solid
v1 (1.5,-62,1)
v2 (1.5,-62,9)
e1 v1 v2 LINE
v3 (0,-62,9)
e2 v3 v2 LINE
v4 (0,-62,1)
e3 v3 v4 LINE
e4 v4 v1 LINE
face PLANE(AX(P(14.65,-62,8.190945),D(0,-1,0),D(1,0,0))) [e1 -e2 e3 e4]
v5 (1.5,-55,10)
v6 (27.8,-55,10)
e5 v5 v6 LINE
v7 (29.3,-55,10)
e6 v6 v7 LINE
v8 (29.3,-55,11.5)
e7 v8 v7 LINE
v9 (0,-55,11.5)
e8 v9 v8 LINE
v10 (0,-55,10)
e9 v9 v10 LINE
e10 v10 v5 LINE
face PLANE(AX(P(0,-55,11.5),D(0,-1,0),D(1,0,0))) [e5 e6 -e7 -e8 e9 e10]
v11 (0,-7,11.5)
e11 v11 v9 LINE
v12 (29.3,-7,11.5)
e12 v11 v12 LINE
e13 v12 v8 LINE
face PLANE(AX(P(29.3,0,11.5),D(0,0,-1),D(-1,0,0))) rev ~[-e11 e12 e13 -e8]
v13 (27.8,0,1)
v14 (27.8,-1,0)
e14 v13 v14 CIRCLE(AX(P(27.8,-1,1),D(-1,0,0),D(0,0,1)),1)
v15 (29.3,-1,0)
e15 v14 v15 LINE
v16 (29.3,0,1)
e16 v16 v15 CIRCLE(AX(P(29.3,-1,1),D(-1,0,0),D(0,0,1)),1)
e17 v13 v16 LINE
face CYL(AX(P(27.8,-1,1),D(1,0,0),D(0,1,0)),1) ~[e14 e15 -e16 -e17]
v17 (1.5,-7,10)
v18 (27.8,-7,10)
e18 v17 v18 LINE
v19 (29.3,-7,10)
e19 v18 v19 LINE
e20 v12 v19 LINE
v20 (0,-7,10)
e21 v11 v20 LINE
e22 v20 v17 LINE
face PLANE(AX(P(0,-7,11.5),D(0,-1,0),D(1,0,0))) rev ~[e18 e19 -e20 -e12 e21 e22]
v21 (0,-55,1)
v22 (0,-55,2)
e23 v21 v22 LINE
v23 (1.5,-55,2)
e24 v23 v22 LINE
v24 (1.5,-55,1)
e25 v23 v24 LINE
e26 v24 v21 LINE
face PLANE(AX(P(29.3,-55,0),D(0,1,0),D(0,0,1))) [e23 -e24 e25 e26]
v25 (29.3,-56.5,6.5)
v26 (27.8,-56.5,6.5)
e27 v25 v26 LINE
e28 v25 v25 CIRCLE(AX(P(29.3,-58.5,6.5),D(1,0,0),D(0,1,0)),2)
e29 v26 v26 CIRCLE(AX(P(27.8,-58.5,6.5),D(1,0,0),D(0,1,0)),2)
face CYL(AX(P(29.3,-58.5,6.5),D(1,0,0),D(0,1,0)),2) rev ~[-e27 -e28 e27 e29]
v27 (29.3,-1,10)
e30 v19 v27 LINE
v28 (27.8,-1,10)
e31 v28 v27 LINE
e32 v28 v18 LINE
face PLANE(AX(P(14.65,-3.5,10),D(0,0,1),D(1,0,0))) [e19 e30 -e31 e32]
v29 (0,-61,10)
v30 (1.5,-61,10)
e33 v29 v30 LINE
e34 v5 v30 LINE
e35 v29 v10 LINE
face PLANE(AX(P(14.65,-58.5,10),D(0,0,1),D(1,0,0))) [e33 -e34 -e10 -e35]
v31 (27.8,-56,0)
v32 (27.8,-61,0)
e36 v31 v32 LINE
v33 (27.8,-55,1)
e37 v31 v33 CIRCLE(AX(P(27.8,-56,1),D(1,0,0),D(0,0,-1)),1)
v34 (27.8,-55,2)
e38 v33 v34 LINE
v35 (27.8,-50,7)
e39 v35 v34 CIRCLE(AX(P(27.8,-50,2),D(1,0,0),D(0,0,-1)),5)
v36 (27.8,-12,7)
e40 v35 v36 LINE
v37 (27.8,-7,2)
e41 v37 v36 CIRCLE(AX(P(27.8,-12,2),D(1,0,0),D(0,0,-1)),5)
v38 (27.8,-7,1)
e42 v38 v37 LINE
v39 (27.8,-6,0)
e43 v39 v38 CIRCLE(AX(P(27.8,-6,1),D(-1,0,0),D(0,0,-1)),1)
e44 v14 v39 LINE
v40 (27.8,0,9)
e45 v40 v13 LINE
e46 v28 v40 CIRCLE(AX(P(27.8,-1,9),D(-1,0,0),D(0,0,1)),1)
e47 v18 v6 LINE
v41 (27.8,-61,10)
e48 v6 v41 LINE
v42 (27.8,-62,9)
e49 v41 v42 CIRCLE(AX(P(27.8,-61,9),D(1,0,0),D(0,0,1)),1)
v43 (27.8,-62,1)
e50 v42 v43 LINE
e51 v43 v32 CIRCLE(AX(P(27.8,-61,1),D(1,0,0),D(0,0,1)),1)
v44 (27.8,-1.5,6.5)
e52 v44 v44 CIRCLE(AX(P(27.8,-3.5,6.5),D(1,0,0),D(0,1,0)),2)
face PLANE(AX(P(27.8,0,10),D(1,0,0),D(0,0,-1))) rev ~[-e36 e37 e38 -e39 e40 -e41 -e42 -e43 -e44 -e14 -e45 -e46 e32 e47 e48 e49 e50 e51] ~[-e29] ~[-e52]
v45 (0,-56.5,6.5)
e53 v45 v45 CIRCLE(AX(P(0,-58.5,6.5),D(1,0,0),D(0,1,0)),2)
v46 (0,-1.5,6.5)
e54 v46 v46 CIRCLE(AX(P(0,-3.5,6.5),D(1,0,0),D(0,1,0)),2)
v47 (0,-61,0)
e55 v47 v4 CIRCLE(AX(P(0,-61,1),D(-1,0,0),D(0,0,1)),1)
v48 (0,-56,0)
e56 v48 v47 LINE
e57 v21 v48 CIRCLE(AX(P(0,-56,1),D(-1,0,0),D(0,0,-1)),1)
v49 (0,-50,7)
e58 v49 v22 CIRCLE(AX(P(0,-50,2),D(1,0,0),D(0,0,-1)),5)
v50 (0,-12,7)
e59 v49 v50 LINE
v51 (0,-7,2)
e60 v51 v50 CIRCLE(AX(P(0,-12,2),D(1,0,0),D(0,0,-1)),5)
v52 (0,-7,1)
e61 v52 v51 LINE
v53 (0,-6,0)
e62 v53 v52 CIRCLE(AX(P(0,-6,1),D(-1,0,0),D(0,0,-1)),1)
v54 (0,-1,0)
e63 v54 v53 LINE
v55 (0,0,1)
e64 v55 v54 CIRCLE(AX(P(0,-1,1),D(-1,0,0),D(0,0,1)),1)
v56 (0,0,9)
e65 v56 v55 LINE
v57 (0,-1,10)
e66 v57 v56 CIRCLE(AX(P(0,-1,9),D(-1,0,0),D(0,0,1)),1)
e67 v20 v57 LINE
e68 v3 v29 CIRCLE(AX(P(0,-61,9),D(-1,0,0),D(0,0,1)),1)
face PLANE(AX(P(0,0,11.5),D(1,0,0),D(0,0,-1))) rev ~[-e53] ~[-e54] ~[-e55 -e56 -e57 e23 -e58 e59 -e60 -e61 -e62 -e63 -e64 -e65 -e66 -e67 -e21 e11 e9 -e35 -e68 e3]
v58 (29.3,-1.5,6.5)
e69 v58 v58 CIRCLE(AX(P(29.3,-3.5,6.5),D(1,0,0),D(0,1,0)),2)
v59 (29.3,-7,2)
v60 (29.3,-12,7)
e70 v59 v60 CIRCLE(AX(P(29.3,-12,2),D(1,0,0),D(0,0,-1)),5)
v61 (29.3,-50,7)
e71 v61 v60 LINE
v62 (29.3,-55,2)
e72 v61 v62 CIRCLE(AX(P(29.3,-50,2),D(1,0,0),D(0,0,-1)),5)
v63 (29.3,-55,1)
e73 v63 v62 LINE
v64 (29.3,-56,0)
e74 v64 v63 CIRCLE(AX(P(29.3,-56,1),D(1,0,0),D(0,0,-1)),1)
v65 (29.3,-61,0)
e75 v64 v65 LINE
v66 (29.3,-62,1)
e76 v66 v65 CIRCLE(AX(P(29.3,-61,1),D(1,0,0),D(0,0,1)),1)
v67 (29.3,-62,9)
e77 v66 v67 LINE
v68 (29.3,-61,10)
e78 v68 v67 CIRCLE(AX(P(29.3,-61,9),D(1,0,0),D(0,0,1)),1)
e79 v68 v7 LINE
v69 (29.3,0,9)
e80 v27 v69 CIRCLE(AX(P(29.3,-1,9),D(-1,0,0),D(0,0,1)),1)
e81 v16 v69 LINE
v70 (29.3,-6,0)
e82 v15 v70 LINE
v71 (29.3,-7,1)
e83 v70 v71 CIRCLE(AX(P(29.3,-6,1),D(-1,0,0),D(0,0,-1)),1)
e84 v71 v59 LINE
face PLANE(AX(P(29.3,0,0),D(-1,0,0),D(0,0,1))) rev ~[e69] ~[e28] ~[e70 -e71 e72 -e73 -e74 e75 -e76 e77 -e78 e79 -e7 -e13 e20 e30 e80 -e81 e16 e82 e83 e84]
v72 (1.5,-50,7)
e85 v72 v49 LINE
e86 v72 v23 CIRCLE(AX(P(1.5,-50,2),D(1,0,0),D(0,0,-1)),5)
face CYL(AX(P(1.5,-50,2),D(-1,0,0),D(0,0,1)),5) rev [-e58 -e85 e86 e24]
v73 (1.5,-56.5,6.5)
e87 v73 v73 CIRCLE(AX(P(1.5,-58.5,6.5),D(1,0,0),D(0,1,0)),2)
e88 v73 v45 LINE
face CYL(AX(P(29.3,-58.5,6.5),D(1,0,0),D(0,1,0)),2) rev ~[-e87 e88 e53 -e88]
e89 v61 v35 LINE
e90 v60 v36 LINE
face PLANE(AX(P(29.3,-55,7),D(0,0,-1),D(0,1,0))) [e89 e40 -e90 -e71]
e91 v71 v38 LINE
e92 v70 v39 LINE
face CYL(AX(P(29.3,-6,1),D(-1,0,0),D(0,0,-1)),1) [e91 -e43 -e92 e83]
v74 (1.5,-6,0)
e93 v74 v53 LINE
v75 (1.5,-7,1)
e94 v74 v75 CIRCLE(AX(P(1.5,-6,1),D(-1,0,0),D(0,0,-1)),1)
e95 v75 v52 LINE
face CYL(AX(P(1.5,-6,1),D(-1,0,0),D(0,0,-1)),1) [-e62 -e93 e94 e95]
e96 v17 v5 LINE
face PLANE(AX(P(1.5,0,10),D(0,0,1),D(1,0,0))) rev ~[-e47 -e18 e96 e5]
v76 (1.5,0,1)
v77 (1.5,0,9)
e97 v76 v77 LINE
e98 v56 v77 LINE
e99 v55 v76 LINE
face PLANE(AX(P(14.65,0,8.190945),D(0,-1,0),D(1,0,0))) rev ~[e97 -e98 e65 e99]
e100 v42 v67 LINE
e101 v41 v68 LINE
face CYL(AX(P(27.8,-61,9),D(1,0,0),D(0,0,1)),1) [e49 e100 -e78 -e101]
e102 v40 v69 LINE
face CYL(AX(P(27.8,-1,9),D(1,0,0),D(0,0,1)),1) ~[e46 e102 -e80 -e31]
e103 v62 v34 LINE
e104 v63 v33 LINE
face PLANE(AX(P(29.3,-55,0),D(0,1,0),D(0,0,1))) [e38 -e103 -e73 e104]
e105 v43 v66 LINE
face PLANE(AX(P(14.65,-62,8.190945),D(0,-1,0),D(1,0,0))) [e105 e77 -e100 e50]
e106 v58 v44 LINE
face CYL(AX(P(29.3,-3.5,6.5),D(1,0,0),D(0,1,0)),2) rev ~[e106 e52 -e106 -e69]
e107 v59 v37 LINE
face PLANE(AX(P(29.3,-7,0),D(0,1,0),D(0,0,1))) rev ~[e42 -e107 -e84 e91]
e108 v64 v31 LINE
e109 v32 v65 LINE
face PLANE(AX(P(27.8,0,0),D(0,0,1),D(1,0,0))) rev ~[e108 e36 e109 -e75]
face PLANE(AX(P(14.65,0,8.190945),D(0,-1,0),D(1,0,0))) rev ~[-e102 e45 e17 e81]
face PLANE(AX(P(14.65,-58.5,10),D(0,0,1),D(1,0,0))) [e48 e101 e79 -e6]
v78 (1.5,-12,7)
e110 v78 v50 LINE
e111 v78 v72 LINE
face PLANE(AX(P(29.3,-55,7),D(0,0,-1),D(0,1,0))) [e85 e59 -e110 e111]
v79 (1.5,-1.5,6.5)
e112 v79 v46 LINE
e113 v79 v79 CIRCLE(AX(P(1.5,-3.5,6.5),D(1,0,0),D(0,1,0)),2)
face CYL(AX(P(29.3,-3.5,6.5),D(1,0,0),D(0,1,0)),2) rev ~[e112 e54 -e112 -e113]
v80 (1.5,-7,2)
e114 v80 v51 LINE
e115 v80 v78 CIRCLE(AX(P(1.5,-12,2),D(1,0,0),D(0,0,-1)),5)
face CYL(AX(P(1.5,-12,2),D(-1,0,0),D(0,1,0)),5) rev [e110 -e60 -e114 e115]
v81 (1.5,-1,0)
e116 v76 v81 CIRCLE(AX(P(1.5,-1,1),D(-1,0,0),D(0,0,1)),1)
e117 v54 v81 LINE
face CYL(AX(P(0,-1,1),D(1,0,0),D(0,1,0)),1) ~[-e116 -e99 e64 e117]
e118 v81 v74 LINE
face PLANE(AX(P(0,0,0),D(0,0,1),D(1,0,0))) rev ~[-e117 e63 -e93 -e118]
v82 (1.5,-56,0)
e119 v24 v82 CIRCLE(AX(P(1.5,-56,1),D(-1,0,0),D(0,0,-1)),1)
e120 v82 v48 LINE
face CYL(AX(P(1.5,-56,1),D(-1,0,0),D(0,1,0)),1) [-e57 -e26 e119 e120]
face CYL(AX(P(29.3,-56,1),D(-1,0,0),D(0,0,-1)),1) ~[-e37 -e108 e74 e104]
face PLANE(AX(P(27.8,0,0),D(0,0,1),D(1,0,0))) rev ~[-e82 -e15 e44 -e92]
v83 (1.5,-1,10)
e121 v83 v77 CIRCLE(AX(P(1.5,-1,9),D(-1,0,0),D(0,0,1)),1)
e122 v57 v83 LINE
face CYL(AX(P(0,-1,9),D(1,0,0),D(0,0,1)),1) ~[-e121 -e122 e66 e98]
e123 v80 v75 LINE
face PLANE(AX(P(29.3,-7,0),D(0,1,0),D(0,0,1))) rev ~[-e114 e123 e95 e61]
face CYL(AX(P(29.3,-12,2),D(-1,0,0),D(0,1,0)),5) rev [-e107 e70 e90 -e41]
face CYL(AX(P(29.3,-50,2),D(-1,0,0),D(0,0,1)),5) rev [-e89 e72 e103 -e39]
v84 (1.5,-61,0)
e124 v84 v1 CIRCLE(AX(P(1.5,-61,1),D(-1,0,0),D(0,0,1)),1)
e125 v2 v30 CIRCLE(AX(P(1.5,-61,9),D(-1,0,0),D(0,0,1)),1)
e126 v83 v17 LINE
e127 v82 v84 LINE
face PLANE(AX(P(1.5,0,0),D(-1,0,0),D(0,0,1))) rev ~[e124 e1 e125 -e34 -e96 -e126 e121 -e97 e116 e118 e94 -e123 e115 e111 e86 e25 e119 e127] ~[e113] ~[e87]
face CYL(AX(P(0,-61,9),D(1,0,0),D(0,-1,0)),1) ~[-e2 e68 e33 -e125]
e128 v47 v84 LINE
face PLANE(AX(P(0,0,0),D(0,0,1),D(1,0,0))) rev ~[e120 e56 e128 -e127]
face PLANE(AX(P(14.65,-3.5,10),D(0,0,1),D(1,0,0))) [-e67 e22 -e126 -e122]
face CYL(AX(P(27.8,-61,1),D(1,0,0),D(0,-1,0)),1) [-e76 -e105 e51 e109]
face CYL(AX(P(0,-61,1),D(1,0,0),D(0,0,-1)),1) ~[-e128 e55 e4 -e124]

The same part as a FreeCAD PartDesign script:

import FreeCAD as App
import Part
import Sketcher
Q = App.Units.Quantity


def edges_at(feature, points):
    """Names of the edges that pass closest to the given points."""
    edges = feature.Shape.Edges
    near = lambda p: min(range(len(edges)), key=lambda i: edges[i].distToShape(Part.Vertex(*p))[0])
    return sorted({f"Edge{near(p) + 1}" for p in points})


def add_polygon(sketch, points):
    """Adds a closed chain of lines whose ends are joined by coincident constraints."""
    first, n = sketch.GeometryCount, len(points)
    for a, b in zip(points, points[1:] + points[:1]):
        sketch.addGeometry(Part.LineSegment(App.Vector(*a, 0), App.Vector(*b, 0)), False)
    for i in range(n):
        sketch.addConstraint(Sketcher.Constraint("Coincident", first + i, 2, first + (i + 1) % n, 1))

doc = App.newDocument("Part")
body = doc.addObject("PartDesign::Body", "Body")

sketch1 = doc.addObject("Sketcher::SketchObject", "Sketch")
body.addObject(sketch1)
sketch1.AttachmentSupport = (doc.XZ_Plane, [""])
sketch1.MapMode = "FlatFace"
add_polygon(sketch1, [(0, 11.5), (0, 0), (1.5, 0), (1.5, 10), (27.8, 10), (27.8, 0), (29.3, 0), (29.3, 11.5)])
sketch1.addConstraint(Sketcher.Constraint("Vertical", 0))
sketch1.addConstraint(Sketcher.Constraint("Horizontal", 1))
sketch1.addConstraint(Sketcher.Constraint("Vertical", 2))
sketch1.addConstraint(Sketcher.Constraint("Horizontal", 3))
sketch1.addConstraint(Sketcher.Constraint("Vertical", 4))
sketch1.addConstraint(Sketcher.Constraint("Horizontal", 5))
sketch1.addConstraint(Sketcher.Constraint("Vertical", 6))
sketch1.addConstraint(Sketcher.Constraint("Horizontal", 7))
sketch1.addConstraint(Sketcher.Constraint("Coincident", 0, 2, -1, 1))
sketch1.addConstraint(Sketcher.Constraint("PointOnObject", 4, 2, -1))
sketch1.addConstraint(Sketcher.Constraint("Equal", 1, 5))
sketch1.addConstraint(Sketcher.Constraint("DistanceY", 2, 1, 2, 2, Q("10 mm")))
sketch1.addConstraint(Sketcher.Constraint("DistanceX", 1, 1, 1, 2, Q("1.5 mm")))
sketch1.addConstraint(Sketcher.Constraint("DistanceX", 3, 1, 3, 2, Q("26.3 mm")))
sketch1.addConstraint(Sketcher.Constraint("DistanceY", 0, 2, 0, 1, Q("11.5 mm")))
pad1 = doc.addObject("PartDesign::Pad", "Pad")
body.addObject(pad1)
pad1.Profile = sketch1
pad1.Length = 62

sketch2 = doc.addObject("Sketcher::SketchObject", "Sketch001")
body.addObject(sketch2)
sketch2.AttachmentSupport = (doc.YZ_Plane, [""])
sketch2.MapMode = "FlatFace"
sketch2.AttachmentOffset = App.Placement(App.Vector(0, 0, 29.3), App.Rotation())
sketch2.addGeometry(Part.Circle(App.Vector(-58.5, 6.5, 0), App.Vector(0, 0, 1), 2), False)
sketch2.addGeometry(Part.Circle(App.Vector(-3.5, 6.5, 0), App.Vector(0, 0, 1), 2), False)
sketch2.addConstraint(Sketcher.Constraint("Equal", 0, 1))
sketch2.addConstraint(Sketcher.Constraint("Horizontal", 0, 3, 1, 3))
sketch2.addConstraint(Sketcher.Constraint("Diameter", 0, Q("4 mm")))
sketch2.addConstraint(Sketcher.Constraint("DistanceX", 0, 3, 1, 3, Q("55 mm")))
sketch2.addConstraint(Sketcher.Constraint("DistanceX", 0, 3, -1, 1, Q("58.5 mm")))
sketch2.addConstraint(Sketcher.Constraint("DistanceY", -1, 1, 0, 3, Q("6.5 mm")))
pocket1 = doc.addObject("PartDesign::Pocket", "Pocket")
body.addObject(pocket1)
pocket1.Profile = sketch2
pocket1.Type = "ThroughAll"

sketch3 = doc.addObject("Sketcher::SketchObject", "Sketch002")
body.addObject(sketch3)
sketch3.AttachmentSupport = (doc.YZ_Plane, [""])
sketch3.MapMode = "FlatFace"
sketch3.AttachmentOffset = App.Placement(App.Vector(0, 0, 29.3), App.Rotation())
add_polygon(sketch3, [(-55, 7), (-55, 0), (-7, 0), (-7, 7)])
sketch3.addConstraint(Sketcher.Constraint("Vertical", 0))
sketch3.addConstraint(Sketcher.Constraint("Horizontal", 1))
sketch3.addConstraint(Sketcher.Constraint("Vertical", 2))
sketch3.addConstraint(Sketcher.Constraint("Horizontal", 3))
sketch3.addConstraint(Sketcher.Constraint("PointOnObject", 0, 2, -1))
sketch3.addConstraint(Sketcher.Constraint("DistanceX", 1, 1, 1, 2, Q("48 mm")))
sketch3.addConstraint(Sketcher.Constraint("DistanceY", 0, 2, 0, 1, Q("7 mm")))
sketch3.addConstraint(Sketcher.Constraint("DistanceX", 0, 2, -1, 1, Q("55 mm")))
pocket2 = doc.addObject("PartDesign::Pocket", "Pocket001")
body.addObject(pocket2)
pocket2.Profile = sketch3
pocket2.Type = "ThroughAll"
doc.recompute()

fillet = doc.addObject("PartDesign::Fillet", "Fillet")
body.addObject(fillet)
fillet.Base = (pocket2, edges_at(pocket2, [
    (28.55, -62, 0),
    (0.75, -55, 0),
    (28.55, -55, 0),
    (0.75, -62, 0),
    (28.55, 0, 0),
    (0.75, -7, 0),
    (28.55, -7, 0),
    (0.75, 0, 0),
]))
fillet.Radius = 1
doc.recompute()

fillet2 = doc.addObject("PartDesign::Fillet", "Fillet001")
body.addObject(fillet2)
fillet2.Base = (fillet, edges_at(fillet, [
    (0.75, -7, 7),
    (28.55, -7, 7),
    (0.75, -55, 7),
    (28.55, -55, 7),
]))
fillet2.Radius = 5

sketch4 = doc.addObject("Sketcher::SketchObject", "Sketch003")
body.addObject(sketch4)
sketch4.AttachmentSupport = (doc.XY_Plane, [""])
sketch4.MapMode = "FlatFace"
sketch4.AttachmentOffset = App.Placement(App.Vector(0, 0, 11.5), App.Rotation())
add_polygon(sketch4, [(0, -55), (0, -62), (29, -62), (29, -55)])
add_polygon(sketch4, [(0, 0), (0, -7), (29, -7), (29, 0)])
sketch4.addConstraint(Sketcher.Constraint("Vertical", 0))
sketch4.addConstraint(Sketcher.Constraint("Horizontal", 1))
sketch4.addConstraint(Sketcher.Constraint("Vertical", 2))
sketch4.addConstraint(Sketcher.Constraint("Horizontal", 3))
sketch4.addConstraint(Sketcher.Constraint("Vertical", 4))
sketch4.addConstraint(Sketcher.Constraint("Horizontal", 5))
sketch4.addConstraint(Sketcher.Constraint("Vertical", 6))
sketch4.addConstraint(Sketcher.Constraint("Horizontal", 7))
sketch4.addConstraint(Sketcher.Constraint("Coincident", 7, 2, -1, 1))
sketch4.addConstraint(Sketcher.Constraint("PointOnObject", 0, 2, -2))
sketch4.addConstraint(Sketcher.Constraint("Vertical", 2, 2, 5, 2))
sketch4.addConstraint(Sketcher.Constraint("Equal", 2, 4))
sketch4.addConstraint(Sketcher.Constraint("DistanceY", 0, 2, 0, 1, Q("7 mm")))
sketch4.addConstraint(Sketcher.Constraint("DistanceX", 1, 1, 1, 2, Q("29.3 mm")))
sketch4.addConstraint(Sketcher.Constraint("DistanceY", 0, 2, -1, 1, Q("62 mm")))
pocket3 = doc.addObject("PartDesign::Pocket", "Pocket002")
body.addObject(pocket3)
pocket3.Profile = sketch4
pocket3.Length = 1.5
doc.recompute()

fillet3 = doc.addObject("PartDesign::Fillet", "Fillet002")
body.addObject(fillet3)
fillet3.Base = (pocket3, edges_at(pocket3, [
    (0.75, -62, 10),
    (28.55, -62, 10),
    (0.75, 0, 10),
    (28.55, 0, 10),
]))
fillet3.Radius = 1

doc.recompute()
